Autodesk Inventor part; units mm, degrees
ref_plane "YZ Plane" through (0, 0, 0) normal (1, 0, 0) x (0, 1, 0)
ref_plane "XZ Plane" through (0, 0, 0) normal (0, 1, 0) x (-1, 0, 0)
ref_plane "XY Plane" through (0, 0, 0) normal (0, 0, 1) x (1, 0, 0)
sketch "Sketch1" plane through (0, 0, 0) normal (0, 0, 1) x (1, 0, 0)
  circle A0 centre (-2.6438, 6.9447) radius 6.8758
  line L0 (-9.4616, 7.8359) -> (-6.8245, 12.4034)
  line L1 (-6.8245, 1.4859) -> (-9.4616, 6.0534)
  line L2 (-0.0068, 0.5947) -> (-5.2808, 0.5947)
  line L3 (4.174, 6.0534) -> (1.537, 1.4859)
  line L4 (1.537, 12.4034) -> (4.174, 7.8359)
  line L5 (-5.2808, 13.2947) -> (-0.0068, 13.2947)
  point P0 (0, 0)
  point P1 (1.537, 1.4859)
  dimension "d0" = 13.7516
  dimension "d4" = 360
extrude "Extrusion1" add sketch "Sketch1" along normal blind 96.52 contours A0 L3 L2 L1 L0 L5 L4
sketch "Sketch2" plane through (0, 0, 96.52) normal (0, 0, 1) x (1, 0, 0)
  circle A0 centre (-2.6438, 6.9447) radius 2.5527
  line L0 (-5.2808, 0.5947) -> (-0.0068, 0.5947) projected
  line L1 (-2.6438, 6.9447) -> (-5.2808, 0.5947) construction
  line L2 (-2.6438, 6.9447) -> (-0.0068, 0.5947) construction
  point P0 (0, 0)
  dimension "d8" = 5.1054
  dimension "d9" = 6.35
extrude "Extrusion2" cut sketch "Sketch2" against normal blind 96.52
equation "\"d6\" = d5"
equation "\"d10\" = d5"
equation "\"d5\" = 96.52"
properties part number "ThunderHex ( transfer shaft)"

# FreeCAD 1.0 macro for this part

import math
import FreeCAD as App
import Part
import Sketcher
from FreeCAD import Vector
Q = App.Units.Quantity

doc = App.newDocument("Part")
body = doc.addObject("PartDesign::Body", "Body")

# Sketch on XY plane
sketch1 = body.newObject("Sketcher::SketchObject", "Sketch")
sketch1.AttachmentSupport = (doc.getObject("XY_Plane"), [""])
sketch1.MapMode = "FlatFace"
sketch1.addGeometry([
    Part.ArcOfCircle(Part.Circle(Vector(-2.6438, 6.9447, 0), Vector(0, 0, 1), 6.8758), math.radians(-7.448114), math.radians(7.447287)),  # 0
    Part.LineSegment(Vector(4.174, 7.8359, 0), Vector(1.537, 12.4034, 0)),  # 1
    Part.ArcOfCircle(Part.Circle(Vector(-2.6438, 6.9447, 0), Vector(0, 0, 1), 6.8758), math.radians(52.551618), math.radians(67.448081)),  # 2
    Part.LineSegment(Vector(-0.0068, 13.2947, 0), Vector(-5.2808, 13.2947, 0)),  # 3
    Part.ArcOfCircle(Part.Circle(Vector(-2.6438, 6.9447, 0), Vector(0, 0, 1), 6.8758), math.radians(112.551919), math.radians(127.447721)),  # 4
    Part.LineSegment(Vector(-6.8245, 12.4034, 0), Vector(-9.4616, 7.8359, 0)),  # 5
    Part.ArcOfCircle(Part.Circle(Vector(-2.6438, 6.9447, 0), Vector(0, 0, 1), 6.8758), math.radians(172.552713), math.radians(187.448114)),  # 6
    Part.LineSegment(Vector(-9.4616, 6.0534, 0), Vector(-6.8245, 1.4859, 0)),  # 7
    Part.ArcOfCircle(Part.Circle(Vector(-2.6438, 6.9447, 0), Vector(0, 0, 1), 6.8758), math.radians(-127.447214), math.radians(-112.551919)),  # 8
    Part.LineSegment(Vector(-5.2808, 0.5947, 0), Vector(-0.0068, 0.5947, 0)),  # 9
    Part.ArcOfCircle(Part.Circle(Vector(-2.6438, 6.9447, 0), Vector(0, 0, 1), 6.8758), math.radians(-67.448081), math.radians(-52.552124)),  # 10
    Part.LineSegment(Vector(1.537, 1.4859, 0), Vector(4.174, 6.0534, 0)),  # 11
], False)
sketch1.addConstraint([
    Sketcher.Constraint("Coincident", 0, 2, 1, 1),
    Sketcher.Constraint("Coincident", 1, 2, 2, 1),
    Sketcher.Constraint("Coincident", 2, 2, 3, 1),
    Sketcher.Constraint("Coincident", 3, 2, 4, 1),
    Sketcher.Constraint("Coincident", 4, 2, 5, 1),
    Sketcher.Constraint("Coincident", 5, 2, 6, 1),
    Sketcher.Constraint("Coincident", 6, 2, 7, 1),
    Sketcher.Constraint("Coincident", 7, 2, 8, 1),
    Sketcher.Constraint("Coincident", 8, 2, 9, 1),
    Sketcher.Constraint("Coincident", 9, 2, 10, 1),
    Sketcher.Constraint("Coincident", 10, 2, 11, 1),
    Sketcher.Constraint("Coincident", 11, 2, 0, 1),
    Sketcher.Constraint("Horizontal", 3),
    Sketcher.Constraint("Horizontal", 9),
    Sketcher.Constraint("Coincident", 2, 3, 0, 3),
    Sketcher.Constraint("Coincident", 4, 3, 0, 3),
    Sketcher.Constraint("Coincident", 6, 3, 0, 3),
    Sketcher.Constraint("Coincident", 8, 3, 0, 3),
    Sketcher.Constraint("Coincident", 10, 3, 0, 3),
    Sketcher.Constraint("Equal", 0, 2),
    Sketcher.Constraint("Equal", 2, 4),
    Sketcher.Constraint("Equal", 4, 6),
    Sketcher.Constraint("Equal", 6, 8),
    Sketcher.Constraint("Equal", 8, 10),
    Sketcher.Constraint("Parallel", 1, 7),
    Sketcher.Constraint("Parallel", 5, 11),
    Sketcher.Constraint("Horizontal", 1, 2, 4, 2),
    Sketcher.Constraint("Horizontal", 0, 2, 5, 2),
    Sketcher.Constraint("Horizontal", 7, 2, 10, 2),
    Sketcher.Constraint("Vertical", 5, 2, 6, 2),
    Sketcher.Constraint("Vertical", 3, 2, 8, 2),
    Sketcher.Constraint("Radius", 0, Q("0.2707 in")),
    Sketcher.Constraint("Angle", 1, Q("119.9996 deg")),
    Sketcher.Constraint("DistanceY", 0, 3, 2, 2, Q("0.25 in")),
    Sketcher.Constraint("DistanceY", 10, 2, 0, 2, Q("0.25 in")),
    Sketcher.Constraint("DistanceY", -1, 1, 0, 2, Q("0.3085 in")),
    Sketcher.Constraint("DistanceX", -1, 1, 1, 2, Q("0.0605 in")),
])
pad1 = body.newObject("PartDesign::Pad", "Pad")
pad1.Profile = sketch1
pad1.Length = Q("3.8 in")

# Sketch on XY plane
sketch2 = body.newObject("Sketcher::SketchObject", "Sketch001")
sketch2.AttachmentSupport = (doc.getObject("XY_Plane"), [""])
sketch2.MapMode = "FlatFace"
sketch2.AttachmentOffset = App.Placement(Vector(0, 0, 3.8 * 25.4), App.Rotation())
sketch2.addGeometry(Part.Circle(Vector(-2.6438, 6.9447, 0), Vector(0, 0, 1), 2.5527), False)
sketch2.addConstraint([
    Sketcher.Constraint("Diameter", 0, Q("0.201 in")),
    Sketcher.Constraint("DistanceX", 0, 3, -1, 1, 2.6438),
    Sketcher.Constraint("DistanceY", -1, 1, 0, 3, 6.9447),
])
pocket1 = body.newObject("PartDesign::Pocket", "Pocket")
pocket1.Profile = sketch2
pocket1.Length = Q("3.8 in")

doc.recompute()
